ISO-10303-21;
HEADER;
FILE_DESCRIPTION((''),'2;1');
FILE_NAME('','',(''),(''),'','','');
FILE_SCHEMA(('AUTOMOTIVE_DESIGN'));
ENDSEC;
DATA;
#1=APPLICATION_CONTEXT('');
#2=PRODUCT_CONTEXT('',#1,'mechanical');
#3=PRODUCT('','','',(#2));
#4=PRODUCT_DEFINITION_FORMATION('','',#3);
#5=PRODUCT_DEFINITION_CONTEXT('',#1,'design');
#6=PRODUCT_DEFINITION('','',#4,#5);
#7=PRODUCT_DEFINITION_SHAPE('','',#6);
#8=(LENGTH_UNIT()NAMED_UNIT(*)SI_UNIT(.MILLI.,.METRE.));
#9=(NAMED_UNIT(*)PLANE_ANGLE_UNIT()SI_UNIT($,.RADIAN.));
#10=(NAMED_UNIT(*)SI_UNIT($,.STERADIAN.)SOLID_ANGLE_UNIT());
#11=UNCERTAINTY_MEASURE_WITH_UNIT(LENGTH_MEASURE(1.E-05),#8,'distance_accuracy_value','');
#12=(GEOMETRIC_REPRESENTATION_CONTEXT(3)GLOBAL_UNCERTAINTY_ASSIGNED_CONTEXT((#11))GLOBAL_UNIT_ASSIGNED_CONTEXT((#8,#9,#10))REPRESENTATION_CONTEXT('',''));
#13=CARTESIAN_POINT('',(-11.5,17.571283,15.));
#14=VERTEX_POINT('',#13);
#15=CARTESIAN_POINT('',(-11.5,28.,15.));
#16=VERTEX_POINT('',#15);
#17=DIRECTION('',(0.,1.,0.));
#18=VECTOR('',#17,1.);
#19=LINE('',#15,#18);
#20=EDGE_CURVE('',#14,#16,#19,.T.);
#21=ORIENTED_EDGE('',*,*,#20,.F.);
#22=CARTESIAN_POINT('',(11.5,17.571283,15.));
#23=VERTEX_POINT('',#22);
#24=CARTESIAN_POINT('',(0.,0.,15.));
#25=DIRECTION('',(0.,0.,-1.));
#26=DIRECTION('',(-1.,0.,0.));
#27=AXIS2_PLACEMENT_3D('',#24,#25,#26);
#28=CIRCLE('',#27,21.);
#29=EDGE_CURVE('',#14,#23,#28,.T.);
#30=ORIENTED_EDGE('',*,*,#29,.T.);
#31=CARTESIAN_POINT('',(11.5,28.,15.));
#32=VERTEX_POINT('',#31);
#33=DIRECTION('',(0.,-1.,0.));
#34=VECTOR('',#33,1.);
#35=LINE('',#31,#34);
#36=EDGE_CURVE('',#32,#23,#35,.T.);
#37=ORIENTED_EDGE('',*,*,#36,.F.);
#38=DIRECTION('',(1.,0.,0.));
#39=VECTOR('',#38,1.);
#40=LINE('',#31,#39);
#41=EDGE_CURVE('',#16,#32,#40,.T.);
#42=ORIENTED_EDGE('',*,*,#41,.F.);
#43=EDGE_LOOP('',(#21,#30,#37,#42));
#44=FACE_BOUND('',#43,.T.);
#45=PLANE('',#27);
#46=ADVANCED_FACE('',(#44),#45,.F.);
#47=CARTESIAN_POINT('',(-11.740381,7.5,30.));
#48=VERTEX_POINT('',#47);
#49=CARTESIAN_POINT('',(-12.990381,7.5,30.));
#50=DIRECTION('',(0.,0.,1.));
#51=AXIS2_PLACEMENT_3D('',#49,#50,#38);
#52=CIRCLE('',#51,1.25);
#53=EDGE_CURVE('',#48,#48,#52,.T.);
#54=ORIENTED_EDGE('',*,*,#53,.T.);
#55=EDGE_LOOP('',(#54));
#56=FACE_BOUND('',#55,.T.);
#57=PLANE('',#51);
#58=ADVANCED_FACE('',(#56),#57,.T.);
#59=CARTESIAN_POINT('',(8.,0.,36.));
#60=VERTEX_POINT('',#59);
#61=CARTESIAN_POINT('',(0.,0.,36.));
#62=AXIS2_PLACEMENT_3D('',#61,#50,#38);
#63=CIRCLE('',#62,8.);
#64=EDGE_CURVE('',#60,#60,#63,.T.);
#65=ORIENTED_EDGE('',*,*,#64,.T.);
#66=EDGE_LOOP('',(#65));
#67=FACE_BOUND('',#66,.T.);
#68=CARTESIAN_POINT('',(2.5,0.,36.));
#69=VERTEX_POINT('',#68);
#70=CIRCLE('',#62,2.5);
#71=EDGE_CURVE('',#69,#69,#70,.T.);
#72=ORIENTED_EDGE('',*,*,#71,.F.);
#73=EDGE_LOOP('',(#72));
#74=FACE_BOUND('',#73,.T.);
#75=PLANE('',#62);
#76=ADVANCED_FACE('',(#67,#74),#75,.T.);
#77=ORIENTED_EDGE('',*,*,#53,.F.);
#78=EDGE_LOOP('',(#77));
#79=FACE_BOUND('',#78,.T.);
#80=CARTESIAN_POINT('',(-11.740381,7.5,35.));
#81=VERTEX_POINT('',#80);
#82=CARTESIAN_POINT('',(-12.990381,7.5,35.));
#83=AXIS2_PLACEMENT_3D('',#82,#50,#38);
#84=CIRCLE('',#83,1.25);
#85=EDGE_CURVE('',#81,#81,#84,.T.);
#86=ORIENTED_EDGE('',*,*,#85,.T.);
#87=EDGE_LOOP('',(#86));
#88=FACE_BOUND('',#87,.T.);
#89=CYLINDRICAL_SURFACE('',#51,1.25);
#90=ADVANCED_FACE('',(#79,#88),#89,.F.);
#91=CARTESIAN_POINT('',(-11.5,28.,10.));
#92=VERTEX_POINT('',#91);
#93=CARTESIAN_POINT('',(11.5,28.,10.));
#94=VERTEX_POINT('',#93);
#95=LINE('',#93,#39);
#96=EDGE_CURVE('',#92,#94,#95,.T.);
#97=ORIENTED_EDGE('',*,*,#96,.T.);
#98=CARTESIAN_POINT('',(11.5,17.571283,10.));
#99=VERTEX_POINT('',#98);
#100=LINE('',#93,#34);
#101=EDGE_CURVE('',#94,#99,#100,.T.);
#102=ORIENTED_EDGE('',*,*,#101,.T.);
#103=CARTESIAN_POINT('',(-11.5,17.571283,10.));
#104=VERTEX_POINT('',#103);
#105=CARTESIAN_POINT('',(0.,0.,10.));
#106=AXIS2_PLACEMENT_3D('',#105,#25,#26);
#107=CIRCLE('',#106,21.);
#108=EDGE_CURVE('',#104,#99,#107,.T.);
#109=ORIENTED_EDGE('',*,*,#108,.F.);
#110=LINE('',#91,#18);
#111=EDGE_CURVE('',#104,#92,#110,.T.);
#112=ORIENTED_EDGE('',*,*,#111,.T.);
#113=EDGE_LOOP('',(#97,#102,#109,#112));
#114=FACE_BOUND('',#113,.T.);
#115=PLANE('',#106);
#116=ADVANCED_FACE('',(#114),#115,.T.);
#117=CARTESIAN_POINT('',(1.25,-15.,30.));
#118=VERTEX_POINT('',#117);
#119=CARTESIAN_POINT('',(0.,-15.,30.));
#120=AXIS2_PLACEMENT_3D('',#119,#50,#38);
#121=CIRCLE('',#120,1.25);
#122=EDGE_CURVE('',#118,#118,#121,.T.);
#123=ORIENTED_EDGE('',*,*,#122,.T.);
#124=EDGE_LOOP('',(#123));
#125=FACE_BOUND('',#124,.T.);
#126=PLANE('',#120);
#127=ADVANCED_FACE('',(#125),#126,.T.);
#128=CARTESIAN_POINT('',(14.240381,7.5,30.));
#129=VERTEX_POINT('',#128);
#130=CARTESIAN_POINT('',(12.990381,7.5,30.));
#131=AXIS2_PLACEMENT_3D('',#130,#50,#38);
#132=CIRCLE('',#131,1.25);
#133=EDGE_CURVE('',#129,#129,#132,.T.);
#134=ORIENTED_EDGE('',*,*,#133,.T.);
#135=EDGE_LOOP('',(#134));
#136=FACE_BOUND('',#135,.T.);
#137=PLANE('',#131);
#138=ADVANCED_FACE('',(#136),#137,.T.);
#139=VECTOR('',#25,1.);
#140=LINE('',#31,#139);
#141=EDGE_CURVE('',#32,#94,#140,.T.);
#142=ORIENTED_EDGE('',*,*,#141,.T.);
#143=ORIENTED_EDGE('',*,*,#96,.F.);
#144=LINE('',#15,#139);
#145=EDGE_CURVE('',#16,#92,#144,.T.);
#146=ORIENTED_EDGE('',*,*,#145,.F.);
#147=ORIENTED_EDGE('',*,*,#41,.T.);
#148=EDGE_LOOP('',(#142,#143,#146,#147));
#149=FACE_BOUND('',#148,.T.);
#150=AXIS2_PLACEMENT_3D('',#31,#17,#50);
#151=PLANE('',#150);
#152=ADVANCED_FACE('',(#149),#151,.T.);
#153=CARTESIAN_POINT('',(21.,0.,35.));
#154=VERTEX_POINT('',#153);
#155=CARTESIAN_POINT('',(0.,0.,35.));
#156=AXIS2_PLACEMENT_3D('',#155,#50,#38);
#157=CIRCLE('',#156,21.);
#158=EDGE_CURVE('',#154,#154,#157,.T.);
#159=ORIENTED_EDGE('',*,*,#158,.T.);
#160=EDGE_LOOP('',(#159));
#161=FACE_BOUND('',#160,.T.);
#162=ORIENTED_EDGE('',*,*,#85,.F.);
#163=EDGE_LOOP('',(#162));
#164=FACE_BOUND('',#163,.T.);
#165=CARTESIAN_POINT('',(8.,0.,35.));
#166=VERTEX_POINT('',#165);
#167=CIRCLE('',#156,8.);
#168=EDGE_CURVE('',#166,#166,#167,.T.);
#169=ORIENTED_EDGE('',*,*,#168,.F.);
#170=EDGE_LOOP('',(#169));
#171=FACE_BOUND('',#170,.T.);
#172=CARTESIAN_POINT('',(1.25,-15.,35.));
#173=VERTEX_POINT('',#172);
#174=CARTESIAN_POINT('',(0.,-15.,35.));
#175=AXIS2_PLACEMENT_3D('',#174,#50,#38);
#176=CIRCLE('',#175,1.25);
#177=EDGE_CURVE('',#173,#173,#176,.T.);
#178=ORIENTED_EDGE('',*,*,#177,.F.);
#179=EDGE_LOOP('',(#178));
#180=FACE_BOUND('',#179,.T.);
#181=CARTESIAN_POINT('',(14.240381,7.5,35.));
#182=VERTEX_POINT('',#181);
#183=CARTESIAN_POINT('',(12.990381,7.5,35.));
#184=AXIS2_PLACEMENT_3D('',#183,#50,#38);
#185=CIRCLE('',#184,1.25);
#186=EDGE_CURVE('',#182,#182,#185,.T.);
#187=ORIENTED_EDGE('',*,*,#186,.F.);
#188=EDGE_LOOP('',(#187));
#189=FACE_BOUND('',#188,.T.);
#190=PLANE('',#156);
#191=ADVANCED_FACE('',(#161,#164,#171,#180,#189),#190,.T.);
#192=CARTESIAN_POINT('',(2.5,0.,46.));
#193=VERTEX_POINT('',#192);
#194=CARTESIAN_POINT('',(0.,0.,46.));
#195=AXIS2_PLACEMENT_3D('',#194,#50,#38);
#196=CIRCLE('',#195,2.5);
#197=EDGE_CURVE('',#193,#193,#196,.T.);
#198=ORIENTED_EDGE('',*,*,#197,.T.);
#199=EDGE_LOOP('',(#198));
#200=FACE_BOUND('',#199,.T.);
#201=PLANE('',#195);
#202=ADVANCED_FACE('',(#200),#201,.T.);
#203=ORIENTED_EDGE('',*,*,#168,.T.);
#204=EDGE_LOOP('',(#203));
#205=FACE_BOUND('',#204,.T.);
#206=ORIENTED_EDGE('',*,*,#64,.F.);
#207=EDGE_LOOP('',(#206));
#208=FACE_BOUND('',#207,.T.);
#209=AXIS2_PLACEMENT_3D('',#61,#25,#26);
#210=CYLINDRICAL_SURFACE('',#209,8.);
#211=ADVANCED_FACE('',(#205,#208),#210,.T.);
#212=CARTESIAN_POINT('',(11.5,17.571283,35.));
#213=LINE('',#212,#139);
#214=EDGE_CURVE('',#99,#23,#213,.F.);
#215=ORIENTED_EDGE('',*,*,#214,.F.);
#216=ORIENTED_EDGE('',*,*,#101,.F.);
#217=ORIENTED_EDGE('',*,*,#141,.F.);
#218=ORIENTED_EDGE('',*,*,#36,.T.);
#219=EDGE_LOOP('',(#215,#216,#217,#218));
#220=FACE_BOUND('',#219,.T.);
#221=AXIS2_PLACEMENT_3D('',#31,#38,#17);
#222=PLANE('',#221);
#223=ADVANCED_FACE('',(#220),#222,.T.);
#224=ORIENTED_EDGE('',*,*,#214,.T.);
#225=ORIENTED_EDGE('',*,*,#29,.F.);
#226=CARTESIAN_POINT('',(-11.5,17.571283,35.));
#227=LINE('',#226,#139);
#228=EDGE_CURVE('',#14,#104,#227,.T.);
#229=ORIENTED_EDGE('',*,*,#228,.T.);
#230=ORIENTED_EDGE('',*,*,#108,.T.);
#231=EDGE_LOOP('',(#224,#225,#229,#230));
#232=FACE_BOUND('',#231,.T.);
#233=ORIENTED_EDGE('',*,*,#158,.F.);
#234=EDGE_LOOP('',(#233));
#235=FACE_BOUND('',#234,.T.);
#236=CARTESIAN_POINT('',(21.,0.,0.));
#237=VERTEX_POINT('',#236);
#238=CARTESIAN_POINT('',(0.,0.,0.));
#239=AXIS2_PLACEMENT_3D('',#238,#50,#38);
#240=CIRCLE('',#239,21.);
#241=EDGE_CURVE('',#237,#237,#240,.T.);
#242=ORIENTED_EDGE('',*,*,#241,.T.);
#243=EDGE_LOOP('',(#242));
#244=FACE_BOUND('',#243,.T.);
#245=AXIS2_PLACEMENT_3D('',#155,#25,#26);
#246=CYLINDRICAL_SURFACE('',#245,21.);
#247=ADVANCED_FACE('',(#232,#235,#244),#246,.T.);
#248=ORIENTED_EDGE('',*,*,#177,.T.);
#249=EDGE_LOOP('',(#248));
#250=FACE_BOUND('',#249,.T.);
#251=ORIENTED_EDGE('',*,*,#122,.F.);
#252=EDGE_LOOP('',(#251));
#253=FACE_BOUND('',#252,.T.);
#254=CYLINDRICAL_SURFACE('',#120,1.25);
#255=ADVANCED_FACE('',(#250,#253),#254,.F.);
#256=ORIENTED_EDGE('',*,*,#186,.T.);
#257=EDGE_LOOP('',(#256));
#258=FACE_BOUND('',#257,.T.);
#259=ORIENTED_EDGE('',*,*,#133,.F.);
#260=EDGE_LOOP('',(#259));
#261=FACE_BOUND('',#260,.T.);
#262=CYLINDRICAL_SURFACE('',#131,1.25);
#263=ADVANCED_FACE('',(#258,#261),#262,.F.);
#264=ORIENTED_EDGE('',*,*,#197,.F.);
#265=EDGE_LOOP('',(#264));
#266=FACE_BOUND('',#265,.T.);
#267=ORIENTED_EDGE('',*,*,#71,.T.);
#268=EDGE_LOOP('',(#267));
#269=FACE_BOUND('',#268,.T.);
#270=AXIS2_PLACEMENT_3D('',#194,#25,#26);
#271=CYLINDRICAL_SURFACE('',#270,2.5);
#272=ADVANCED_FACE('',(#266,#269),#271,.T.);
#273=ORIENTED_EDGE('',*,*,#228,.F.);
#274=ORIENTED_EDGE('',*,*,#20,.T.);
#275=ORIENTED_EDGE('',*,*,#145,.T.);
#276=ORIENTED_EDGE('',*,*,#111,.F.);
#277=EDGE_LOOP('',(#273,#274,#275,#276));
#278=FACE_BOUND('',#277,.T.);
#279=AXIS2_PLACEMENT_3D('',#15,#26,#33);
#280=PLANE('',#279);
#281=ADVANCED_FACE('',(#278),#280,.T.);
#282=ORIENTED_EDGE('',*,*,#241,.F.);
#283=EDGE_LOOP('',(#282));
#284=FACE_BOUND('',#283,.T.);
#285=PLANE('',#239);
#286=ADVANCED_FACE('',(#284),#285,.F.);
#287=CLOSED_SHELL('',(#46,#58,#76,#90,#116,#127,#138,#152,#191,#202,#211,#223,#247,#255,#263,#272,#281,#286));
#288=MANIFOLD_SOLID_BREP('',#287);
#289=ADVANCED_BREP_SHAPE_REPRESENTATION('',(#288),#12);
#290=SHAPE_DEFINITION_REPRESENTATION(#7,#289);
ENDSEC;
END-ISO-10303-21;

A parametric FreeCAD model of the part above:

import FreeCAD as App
import Part
import Sketcher

V = App.Vector
Q = App.Units.Quantity


def add_polygon(sketch, points):
    """Adds a closed chain of lines whose ends are joined by coincident constraints."""
    first, n = sketch.GeometryCount, len(points)
    for a, b in zip(points, points[1:] + points[:1]):
        sketch.addGeometry(Part.LineSegment(App.Vector(*a, 0), App.Vector(*b, 0)), False)
    for i in range(n):
        sketch.addConstraint(Sketcher.Constraint("Coincident", first + i, 2, first + (i + 1) % n, 1))

doc = App.newDocument("Part")
params = doc.addObject("Spreadsheet::Sheet", "Params")
for row, (alias, value) in enumerate([
    ("sketch1_diameter", "42 mm"),
    ("pad1_length", "35 mm"),
    ("sketch2_diameter", "16 mm"),
    ("pad2_length", "1 mm"),
    ("sketch3_diameter", "5 mm"),
    ("pad3_length", "10 mm"),
    ("sketch4_width", "23 mm"),
    ("pad4_length", "5 mm"),
    ("sketch5_diameter", "2.5 mm"),
    ("pocket1_length", "5 mm"),
], start=1):
    params.set(f"A{row}", alias)
    params.set(f"B{row}", "=" + value)
    params.setAlias(f"B{row}", alias)

body = doc.addObject("PartDesign::Body", "Body")

sketch1 = doc.addObject("Sketcher::SketchObject", "Sketch")
body.addObject(sketch1)
sketch1.AttachmentSupport = (doc.XY_Plane, [""])
sketch1.MapMode = "FlatFace"
sketch1.addGeometry(Part.Circle(V(0, 0, 0), V(0, 0, 1), 21), False)
sketch1.addConstraint(Sketcher.Constraint("Coincident", 0, 3, -1, 1))
sketch1.addConstraint(Sketcher.Constraint("Diameter", 0, Q("42 mm")))
sketch1.setExpression("Constraints[1]", "Params.sketch1_diameter")
pad1 = doc.addObject("PartDesign::Pad", "Pad")
body.addObject(pad1)
pad1.Profile = sketch1
pad1.setExpression("Length", "Params.pad1_length")

sketch2 = doc.addObject("Sketcher::SketchObject", "Sketch001")
body.addObject(sketch2)
sketch2.AttachmentSupport = (doc.XY_Plane, [""])
sketch2.MapMode = "FlatFace"
sketch2.AttachmentOffset = App.Placement(V(0, 0, 35), App.Rotation())
sketch2.addGeometry(Part.Circle(V(0, 0, 0), V(0, 0, 1), 8), False)
sketch2.addConstraint(Sketcher.Constraint("Coincident", 0, 3, -1, 1))
sketch2.addConstraint(Sketcher.Constraint("Diameter", 0, Q("16 mm")))
sketch2.setExpression("Constraints[1]", "Params.sketch2_diameter")
pad2 = doc.addObject("PartDesign::Pad", "Pad001")
body.addObject(pad2)
pad2.Profile = sketch2
pad2.setExpression("Length", "Params.pad2_length")

sketch3 = doc.addObject("Sketcher::SketchObject", "Sketch002")
body.addObject(sketch3)
sketch3.AttachmentSupport = (doc.XY_Plane, [""])
sketch3.MapMode = "FlatFace"
sketch3.AttachmentOffset = App.Placement(V(0, 0, 36), App.Rotation())
sketch3.addGeometry(Part.Circle(V(0, 0, 0), V(0, 0, 1), 2.5), False)
sketch3.addConstraint(Sketcher.Constraint("Coincident", 0, 3, -1, 1))
sketch3.addConstraint(Sketcher.Constraint("Diameter", 0, Q("5 mm")))
sketch3.setExpression("Constraints[1]", "Params.sketch3_diameter")
pad3 = doc.addObject("PartDesign::Pad", "Pad002")
body.addObject(pad3)
pad3.Profile = sketch3
pad3.setExpression("Length", "Params.pad3_length")

sketch4 = doc.addObject("Sketcher::SketchObject", "Sketch003")
body.addObject(sketch4)
sketch4.AttachmentSupport = (doc.XY_Plane, [""])
sketch4.MapMode = "FlatFace"
sketch4.AttachmentOffset = App.Placement(V(0, 0, 10), App.Rotation())
add_polygon(sketch4, [(12, 28), (12, 14), (-12, 14), (-12, 28)])
sketch4.addConstraint(Sketcher.Constraint("Vertical", 0))
sketch4.addConstraint(Sketcher.Constraint("Horizontal", 1))
sketch4.addConstraint(Sketcher.Constraint("Vertical", 2))
sketch4.addConstraint(Sketcher.Constraint("Horizontal", 3))
sketch4.addConstraint(Sketcher.Constraint("DistanceX", 1, 2, 1, 1, Q("23 mm")))
sketch4.addConstraint(Sketcher.Constraint("DistanceY", -1, 1, 2, 2, Q("28 mm")))
sketch4.addConstraint(Sketcher.Constraint("DistanceX", -1, 1, 0, 2, Q("11.5 mm")))
sketch4.addConstraint(Sketcher.Constraint("DistanceY", 0, 2, 0, 1, Q("14.139392 mm")))
sketch4.setExpression("Constraints[8]", "Params.sketch4_width")
pad4 = doc.addObject("PartDesign::Pad", "Pad003")
body.addObject(pad4)
pad4.Profile = sketch4
pad4.setExpression("Length", "Params.pad4_length")

sketch5 = doc.addObject("Sketcher::SketchObject", "Sketch004")
body.addObject(sketch5)
sketch5.AttachmentSupport = (doc.XY_Plane, [""])
sketch5.MapMode = "FlatFace"
sketch5.AttachmentOffset = App.Placement(V(0, 0, 35), App.Rotation())
sketch5.addGeometry(Part.Circle(V(0, -15, 0), V(0, 0, 1), 1.2), False)
sketch5.addGeometry(Part.Circle(V(-13, 7.5, 0), V(0, 0, 1), 1.2), False)
sketch5.addGeometry(Part.Circle(V(13, 7.5, 0), V(0, 0, 1), 1.2), False)
sketch5.addConstraint(Sketcher.Constraint("Equal", 0, 1))
sketch5.addConstraint(Sketcher.Constraint("Equal", 1, 2))
sketch5.addConstraint(Sketcher.Constraint("Symmetric", 1, 3, 2, 3, -2))
sketch5.addConstraint(Sketcher.Constraint("PointOnObject", 0, 3, -2))
sketch5.addConstraint(Sketcher.Constraint("Diameter", 0, Q("2.5 mm")))
sketch5.addConstraint(Sketcher.Constraint("DistanceY", 0, 3, -1, 1, Q("15 mm")))
sketch5.addConstraint(Sketcher.Constraint("DistanceY", -1, 1, 1, 3, Q("7.5 mm")))
sketch5.addConstraint(Sketcher.Constraint("DistanceX", 1, 3, -1, 1, Q("12.990381 mm")))
sketch5.setExpression("Constraints[4]", "Params.sketch5_diameter")
pocket1 = doc.addObject("PartDesign::Pocket", "Pocket")
body.addObject(pocket1)
pocket1.Profile = sketch5
pocket1.setExpression("Length", "Params.pocket1_length")

doc.recompute()
